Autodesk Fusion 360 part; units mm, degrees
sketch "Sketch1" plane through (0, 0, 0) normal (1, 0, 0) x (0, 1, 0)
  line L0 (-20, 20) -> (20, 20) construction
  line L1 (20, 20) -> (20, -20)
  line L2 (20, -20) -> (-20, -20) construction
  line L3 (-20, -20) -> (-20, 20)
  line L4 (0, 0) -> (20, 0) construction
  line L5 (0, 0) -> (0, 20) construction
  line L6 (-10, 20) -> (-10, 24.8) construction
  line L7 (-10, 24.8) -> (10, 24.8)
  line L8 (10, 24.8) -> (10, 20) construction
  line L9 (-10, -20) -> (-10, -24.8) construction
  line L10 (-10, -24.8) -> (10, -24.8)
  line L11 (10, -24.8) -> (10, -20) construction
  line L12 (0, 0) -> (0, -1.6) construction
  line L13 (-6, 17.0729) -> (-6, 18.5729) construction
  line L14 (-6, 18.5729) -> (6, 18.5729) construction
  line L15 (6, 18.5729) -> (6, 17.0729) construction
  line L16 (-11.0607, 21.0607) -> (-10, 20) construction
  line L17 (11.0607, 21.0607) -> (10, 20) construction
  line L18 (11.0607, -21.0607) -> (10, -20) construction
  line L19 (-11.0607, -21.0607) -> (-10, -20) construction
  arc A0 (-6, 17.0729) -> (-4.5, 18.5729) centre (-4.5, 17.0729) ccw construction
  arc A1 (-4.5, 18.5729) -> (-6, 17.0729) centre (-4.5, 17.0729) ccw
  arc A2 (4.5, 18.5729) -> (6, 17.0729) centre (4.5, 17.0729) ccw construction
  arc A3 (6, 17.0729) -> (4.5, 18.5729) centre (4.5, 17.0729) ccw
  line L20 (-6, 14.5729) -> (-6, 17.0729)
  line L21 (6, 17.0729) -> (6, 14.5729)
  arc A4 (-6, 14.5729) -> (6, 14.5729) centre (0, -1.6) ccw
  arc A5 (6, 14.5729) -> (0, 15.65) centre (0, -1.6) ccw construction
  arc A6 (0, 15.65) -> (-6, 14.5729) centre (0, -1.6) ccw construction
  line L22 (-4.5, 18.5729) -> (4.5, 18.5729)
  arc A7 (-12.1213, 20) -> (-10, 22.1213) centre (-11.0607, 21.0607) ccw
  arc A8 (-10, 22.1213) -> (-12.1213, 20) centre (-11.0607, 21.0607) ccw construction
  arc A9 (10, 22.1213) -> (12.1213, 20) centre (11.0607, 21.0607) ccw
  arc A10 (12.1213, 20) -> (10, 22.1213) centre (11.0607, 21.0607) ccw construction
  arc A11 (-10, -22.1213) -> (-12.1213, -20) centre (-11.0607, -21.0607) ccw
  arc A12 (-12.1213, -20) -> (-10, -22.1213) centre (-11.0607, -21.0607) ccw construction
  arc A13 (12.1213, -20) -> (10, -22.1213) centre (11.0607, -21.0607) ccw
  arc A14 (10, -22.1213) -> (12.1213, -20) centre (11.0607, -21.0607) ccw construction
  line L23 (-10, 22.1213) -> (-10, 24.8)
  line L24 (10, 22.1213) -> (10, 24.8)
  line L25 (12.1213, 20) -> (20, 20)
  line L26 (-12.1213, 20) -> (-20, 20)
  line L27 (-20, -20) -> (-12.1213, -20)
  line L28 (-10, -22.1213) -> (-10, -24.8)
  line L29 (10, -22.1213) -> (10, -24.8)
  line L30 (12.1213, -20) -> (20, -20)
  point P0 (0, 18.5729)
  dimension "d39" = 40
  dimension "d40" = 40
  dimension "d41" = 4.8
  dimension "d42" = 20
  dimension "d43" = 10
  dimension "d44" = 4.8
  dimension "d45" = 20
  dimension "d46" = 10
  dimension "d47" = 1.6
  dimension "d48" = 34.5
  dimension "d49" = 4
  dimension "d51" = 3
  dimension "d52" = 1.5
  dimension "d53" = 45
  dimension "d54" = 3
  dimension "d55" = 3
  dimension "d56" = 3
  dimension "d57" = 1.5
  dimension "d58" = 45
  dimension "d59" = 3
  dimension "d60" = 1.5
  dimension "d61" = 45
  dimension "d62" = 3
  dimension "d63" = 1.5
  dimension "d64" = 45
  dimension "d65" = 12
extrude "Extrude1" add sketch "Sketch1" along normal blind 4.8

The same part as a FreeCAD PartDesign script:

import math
import FreeCAD as App
import Part
import Sketcher
from FreeCAD import Vector

doc = App.newDocument("Part")
body = doc.addObject("PartDesign::Body", "Body")

# Sketch on YZ plane
sketch1 = body.newObject("Sketcher::SketchObject", "Sketch")
sketch1.AttachmentSupport = (doc.getObject("YZ_Plane"), [""])
sketch1.MapMode = "FlatFace"
sketch1.addGeometry(Part.LineSegment(Vector(20, -20, 0), Vector(20, 20, 0)), False)
sketch1.addGeometry(Part.LineSegment(Vector(20, 20, 0), Vector(12.1, 20, 0)), False)
sketch1.addGeometry(Part.ArcOfCircle(Part.Circle(Vector(11.1, 21.1, 0), Vector(0, 0, 1), 1.5), math.radians(135), math.radians(315)), False)
sketch1.addGeometry(Part.LineSegment(Vector(10, 22.1, 0), Vector(10, 24.8, 0)), False)
sketch1.addGeometry(Part.LineSegment(Vector(10, 24.8, 0), Vector(-10, 24.8, 0)), False)
sketch1.addGeometry(Part.LineSegment(Vector(-10, 24.8, 0), Vector(-10, 22.1, 0)), False)
sketch1.addGeometry(Part.ArcOfCircle(Part.Circle(Vector(-11.1, 21.1, 0), Vector(0, 0, 1), 1.5), math.radians(-135), math.radians(45)), False)
sketch1.addGeometry(Part.LineSegment(Vector(-12.1, 20, 0), Vector(-20, 20, 0)), False)
sketch1.addGeometry(Part.LineSegment(Vector(-20, 20, 0), Vector(-20, -20, 0)), False)
sketch1.addGeometry(Part.LineSegment(Vector(-20, -20, 0), Vector(-12.1, -20, 0)), False)
sketch1.addGeometry(Part.ArcOfCircle(Part.Circle(Vector(-11.1, -21.1, 0), Vector(0, 0, 1), 1.5), math.radians(-45), math.radians(135)), False)
sketch1.addGeometry(Part.LineSegment(Vector(-10, -22.1, 0), Vector(-10, -24.8, 0)), False)
sketch1.addGeometry(Part.LineSegment(Vector(-10, -24.8, 0), Vector(10, -24.8, 0)), False)
sketch1.addGeometry(Part.LineSegment(Vector(10, -24.8, 0), Vector(10, -22.1, 0)), False)
sketch1.addGeometry(Part.ArcOfCircle(Part.Circle(Vector(11.1, -21.1, 0), Vector(0, 0, 1), 1.5), math.radians(45), math.radians(225)), False)
sketch1.addGeometry(Part.LineSegment(Vector(12.1, -20, 0), Vector(20, -20, 0)), False)
sketch1.addGeometry(Part.ArcOfCircle(Part.Circle(Vector(-4.5, 17.1, 0), Vector(0, 0, 1), 1.5), math.radians(90), math.radians(180)), False)
sketch1.addGeometry(Part.LineSegment(Vector(-4.5, 18.6, 0), Vector(4.5, 18.6, 0)), False)
sketch1.addGeometry(Part.ArcOfCircle(Part.Circle(Vector(4.5, 17.1, 0), Vector(0, 0, 1), 1.5), math.radians(0), math.radians(90)), False)
sketch1.addGeometry(Part.LineSegment(Vector(6, 17.1, 0), Vector(6, 14.6, 0)), False)
sketch1.addGeometry(Part.ArcOfCircle(Part.Circle(Vector(0, -1.6, 0), Vector(0, 0, 1), 17.3), math.radians(110), math.radians(430)), False)
sketch1.addGeometry(Part.LineSegment(Vector(-6, 14.6, 0), Vector(-6, 17.1, 0)), False)
sketch1.addConstraint(Sketcher.Constraint("Coincident", 0, 2, 1, 1))
sketch1.addConstraint(Sketcher.Constraint("Coincident", 1, 2, 2, 2))
sketch1.addConstraint(Sketcher.Constraint("Coincident", 2, 1, 3, 1))
sketch1.addConstraint(Sketcher.Constraint("Coincident", 3, 2, 4, 1))
sketch1.addConstraint(Sketcher.Constraint("Coincident", 4, 2, 5, 1))
sketch1.addConstraint(Sketcher.Constraint("Coincident", 5, 2, 6, 2))
sketch1.addConstraint(Sketcher.Constraint("Coincident", 6, 1, 7, 1))
sketch1.addConstraint(Sketcher.Constraint("Coincident", 7, 2, 8, 1))
sketch1.addConstraint(Sketcher.Constraint("Coincident", 8, 2, 9, 1))
sketch1.addConstraint(Sketcher.Constraint("Coincident", 9, 2, 10, 2))
sketch1.addConstraint(Sketcher.Constraint("Coincident", 10, 1, 11, 1))
sketch1.addConstraint(Sketcher.Constraint("Coincident", 11, 2, 12, 1))
sketch1.addConstraint(Sketcher.Constraint("Coincident", 12, 2, 13, 1))
sketch1.addConstraint(Sketcher.Constraint("Coincident", 13, 2, 14, 2))
sketch1.addConstraint(Sketcher.Constraint("Coincident", 14, 1, 15, 1))
sketch1.addConstraint(Sketcher.Constraint("Coincident", 15, 2, 0, 1))
sketch1.addConstraint(Sketcher.Constraint("Tangent", 16, 1, 17, 1))
sketch1.addConstraint(Sketcher.Constraint("Tangent", 17, 2, 18, 2))
sketch1.addConstraint(Sketcher.Constraint("Tangent", 18, 1, 19, 1))
sketch1.addConstraint(Sketcher.Constraint("Coincident", 19, 2, 20, 2))
sketch1.addConstraint(Sketcher.Constraint("Coincident", 20, 1, 21, 1))
sketch1.addConstraint(Sketcher.Constraint("Tangent", 21, 2, 16, 2))
sketch1.addConstraint(Sketcher.Constraint("Vertical", 0))
sketch1.addConstraint(Sketcher.Constraint("Horizontal", 1))
sketch1.addConstraint(Sketcher.Constraint("Vertical", 3))
sketch1.addConstraint(Sketcher.Constraint("Horizontal", 4))
sketch1.addConstraint(Sketcher.Constraint("Vertical", 5))
sketch1.addConstraint(Sketcher.Constraint("Horizontal", 7))
sketch1.addConstraint(Sketcher.Constraint("Vertical", 8))
sketch1.addConstraint(Sketcher.Constraint("Horizontal", 9))
sketch1.addConstraint(Sketcher.Constraint("Vertical", 11))
sketch1.addConstraint(Sketcher.Constraint("Horizontal", 12))
sketch1.addConstraint(Sketcher.Constraint("Vertical", 13))
sketch1.addConstraint(Sketcher.Constraint("Horizontal", 15))
sketch1.addConstraint(Sketcher.Constraint("Horizontal", 17))
sketch1.addConstraint(Sketcher.Constraint("Vertical", 19))
sketch1.addConstraint(Sketcher.Constraint("Vertical", 21))
sketch1.addConstraint(Sketcher.Constraint("Equal", 2, 6))
sketch1.addConstraint(Sketcher.Constraint("Equal", 6, 10))
sketch1.addConstraint(Sketcher.Constraint("Equal", 10, 14))
sketch1.addConstraint(Sketcher.Constraint("Equal", 14, 16))
sketch1.addConstraint(Sketcher.Constraint("Equal", 16, 18))
sketch1.addConstraint(Sketcher.Constraint("Symmetric", 2, 3, 10, 3, -1, 1))
sketch1.addConstraint(Sketcher.Constraint("Symmetric", 6, 3, 14, 3, -1, 1))
sketch1.addConstraint(Sketcher.Constraint("Symmetric", 0, 2, 8, 2, -1, 1))
sketch1.addConstraint(Sketcher.Constraint("Symmetric", 3, 2, 11, 2, -1, 1))
sketch1.addConstraint(Sketcher.Constraint("Symmetric", 2, 3, 6, 3, -2))
sketch1.addConstraint(Sketcher.Constraint("Symmetric", 19, 2, 20, 1, -2))
sketch1.addConstraint(Sketcher.Constraint("Horizontal", 2, 1, 5, 2))
sketch1.addConstraint(Sketcher.Constraint("Horizontal", 1, 2, 6, 1))
sketch1.addConstraint(Sketcher.Constraint("Horizontal", 10, 1, 13, 2))
sketch1.addConstraint(Sketcher.Constraint("Horizontal", 9, 2, 14, 1))
sketch1.addConstraint(Sketcher.Constraint("Radius", 2, 1.5))
sketch1.addConstraint(Sketcher.Constraint("DistanceX", 4, 2, 4, 1, 20.0))
sketch1.addConstraint(Sketcher.Constraint("DistanceY", 0, 1, 0, 2, 40.0))
sketch1.addConstraint(Sketcher.Constraint("Radius", 20, 17.25))
sketch1.addConstraint(Sketcher.Constraint("DistanceX", -1, 1, 0, 2, 20.0))
sketch1.addConstraint(Sketcher.Constraint("DistanceX", 18, 1, 2, 1, 4.0))
sketch1.addConstraint(Sketcher.Constraint("DistanceY", 19, 2, 17, 2, 4.0))
sketch1.addConstraint(Sketcher.Constraint("DistanceY", 20, 3, -1, 1, 1.6))
sketch1.addConstraint(Sketcher.Constraint("DistanceY", 1, 2, 3, 2, 4.8))
sketch1.addConstraint(Sketcher.Constraint("DistanceX", 1, 2, 1, 1, 7.8787))
sketch1.addConstraint(Sketcher.Constraint("DistanceX", 6, 3, 1, 2, 23.182))
pad1 = body.newObject("PartDesign::Pad", "Pad")
pad1.Profile = sketch1
pad1.Length = 4.8

doc.recompute()
